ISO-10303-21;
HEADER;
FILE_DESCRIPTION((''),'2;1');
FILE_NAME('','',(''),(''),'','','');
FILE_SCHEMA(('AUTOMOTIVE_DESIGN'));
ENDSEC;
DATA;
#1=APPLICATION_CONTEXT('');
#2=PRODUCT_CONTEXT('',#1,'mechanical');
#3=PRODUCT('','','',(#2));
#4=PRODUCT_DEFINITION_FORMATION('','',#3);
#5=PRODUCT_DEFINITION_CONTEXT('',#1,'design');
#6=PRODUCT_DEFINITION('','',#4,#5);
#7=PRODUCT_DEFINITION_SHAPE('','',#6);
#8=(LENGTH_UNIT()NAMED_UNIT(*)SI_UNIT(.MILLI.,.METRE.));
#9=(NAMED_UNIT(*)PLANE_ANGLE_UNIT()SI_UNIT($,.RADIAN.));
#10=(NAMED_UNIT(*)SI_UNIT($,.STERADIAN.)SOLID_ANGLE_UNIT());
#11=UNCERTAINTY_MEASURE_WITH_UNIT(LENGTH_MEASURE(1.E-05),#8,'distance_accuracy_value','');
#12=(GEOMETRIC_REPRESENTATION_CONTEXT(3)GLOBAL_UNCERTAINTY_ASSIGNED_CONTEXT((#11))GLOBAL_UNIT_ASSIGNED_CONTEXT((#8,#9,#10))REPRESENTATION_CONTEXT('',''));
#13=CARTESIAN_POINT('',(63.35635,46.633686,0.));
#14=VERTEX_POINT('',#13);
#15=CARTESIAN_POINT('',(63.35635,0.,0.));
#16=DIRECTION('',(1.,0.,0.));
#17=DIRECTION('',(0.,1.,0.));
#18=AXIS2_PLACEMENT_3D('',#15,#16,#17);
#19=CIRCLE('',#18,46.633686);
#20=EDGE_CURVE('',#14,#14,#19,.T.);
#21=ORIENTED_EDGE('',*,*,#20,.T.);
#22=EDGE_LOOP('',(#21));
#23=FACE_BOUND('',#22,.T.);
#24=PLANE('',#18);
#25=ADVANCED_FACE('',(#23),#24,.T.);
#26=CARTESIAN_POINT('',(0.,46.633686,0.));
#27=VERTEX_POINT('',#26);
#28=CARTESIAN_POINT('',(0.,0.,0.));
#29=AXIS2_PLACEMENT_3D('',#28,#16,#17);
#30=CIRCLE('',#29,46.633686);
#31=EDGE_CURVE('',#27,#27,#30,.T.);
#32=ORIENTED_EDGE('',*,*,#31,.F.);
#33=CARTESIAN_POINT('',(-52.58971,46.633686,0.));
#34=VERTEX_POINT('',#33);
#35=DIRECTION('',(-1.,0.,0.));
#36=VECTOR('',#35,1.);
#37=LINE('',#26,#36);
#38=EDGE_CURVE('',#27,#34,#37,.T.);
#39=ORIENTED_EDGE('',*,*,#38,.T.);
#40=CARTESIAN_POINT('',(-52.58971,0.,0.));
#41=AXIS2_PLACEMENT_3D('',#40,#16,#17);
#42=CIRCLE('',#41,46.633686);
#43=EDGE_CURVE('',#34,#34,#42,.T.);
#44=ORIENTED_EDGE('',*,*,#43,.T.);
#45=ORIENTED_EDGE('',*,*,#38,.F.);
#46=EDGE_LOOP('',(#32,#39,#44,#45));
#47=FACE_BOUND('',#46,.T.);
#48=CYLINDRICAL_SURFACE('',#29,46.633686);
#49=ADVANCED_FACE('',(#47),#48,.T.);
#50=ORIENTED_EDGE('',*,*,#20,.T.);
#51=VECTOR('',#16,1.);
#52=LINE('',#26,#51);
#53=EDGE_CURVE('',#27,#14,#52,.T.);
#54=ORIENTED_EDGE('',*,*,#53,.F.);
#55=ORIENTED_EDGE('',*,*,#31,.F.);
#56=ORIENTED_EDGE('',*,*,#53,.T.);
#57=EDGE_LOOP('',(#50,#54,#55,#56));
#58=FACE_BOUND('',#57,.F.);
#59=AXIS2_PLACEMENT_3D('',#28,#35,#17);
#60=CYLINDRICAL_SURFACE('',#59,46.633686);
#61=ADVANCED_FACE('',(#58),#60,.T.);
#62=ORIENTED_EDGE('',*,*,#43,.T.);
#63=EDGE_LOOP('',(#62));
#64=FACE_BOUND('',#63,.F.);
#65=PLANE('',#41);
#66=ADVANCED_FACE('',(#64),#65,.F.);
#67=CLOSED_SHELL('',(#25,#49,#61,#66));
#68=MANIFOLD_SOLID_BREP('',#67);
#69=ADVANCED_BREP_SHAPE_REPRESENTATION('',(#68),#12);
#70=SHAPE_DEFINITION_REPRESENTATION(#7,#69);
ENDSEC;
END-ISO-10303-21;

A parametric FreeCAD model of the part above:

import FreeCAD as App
import Part
import Sketcher

doc = App.newDocument("Part")
body = doc.addObject("PartDesign::Body", "Body")

sketch1 = body.newObject("Sketcher::SketchObject", "Sketch")
sketch1.AttachmentSupport = (doc.getObject("YZ_Plane"), [""])
sketch1.MapMode = "FlatFace"
sketch1.addGeometry(Part.Circle(App.Vector(0, 0, 0), App.Vector(0, 0, 1), 47), False)
sketch1.addConstraint(Sketcher.Constraint("Coincident", 0, 3, -1, 1))
sketch1.addConstraint(Sketcher.Constraint("Diameter", 0, 93.267373))
pad1 = body.newObject("PartDesign::Pad", "Pad")
pad1.Profile = sketch1
pad1.Type = "TwoLengths"
pad1.Length = 52.58971
pad1.Length2 = 63.35635
pad1.Reversed = True

doc.recompute()
